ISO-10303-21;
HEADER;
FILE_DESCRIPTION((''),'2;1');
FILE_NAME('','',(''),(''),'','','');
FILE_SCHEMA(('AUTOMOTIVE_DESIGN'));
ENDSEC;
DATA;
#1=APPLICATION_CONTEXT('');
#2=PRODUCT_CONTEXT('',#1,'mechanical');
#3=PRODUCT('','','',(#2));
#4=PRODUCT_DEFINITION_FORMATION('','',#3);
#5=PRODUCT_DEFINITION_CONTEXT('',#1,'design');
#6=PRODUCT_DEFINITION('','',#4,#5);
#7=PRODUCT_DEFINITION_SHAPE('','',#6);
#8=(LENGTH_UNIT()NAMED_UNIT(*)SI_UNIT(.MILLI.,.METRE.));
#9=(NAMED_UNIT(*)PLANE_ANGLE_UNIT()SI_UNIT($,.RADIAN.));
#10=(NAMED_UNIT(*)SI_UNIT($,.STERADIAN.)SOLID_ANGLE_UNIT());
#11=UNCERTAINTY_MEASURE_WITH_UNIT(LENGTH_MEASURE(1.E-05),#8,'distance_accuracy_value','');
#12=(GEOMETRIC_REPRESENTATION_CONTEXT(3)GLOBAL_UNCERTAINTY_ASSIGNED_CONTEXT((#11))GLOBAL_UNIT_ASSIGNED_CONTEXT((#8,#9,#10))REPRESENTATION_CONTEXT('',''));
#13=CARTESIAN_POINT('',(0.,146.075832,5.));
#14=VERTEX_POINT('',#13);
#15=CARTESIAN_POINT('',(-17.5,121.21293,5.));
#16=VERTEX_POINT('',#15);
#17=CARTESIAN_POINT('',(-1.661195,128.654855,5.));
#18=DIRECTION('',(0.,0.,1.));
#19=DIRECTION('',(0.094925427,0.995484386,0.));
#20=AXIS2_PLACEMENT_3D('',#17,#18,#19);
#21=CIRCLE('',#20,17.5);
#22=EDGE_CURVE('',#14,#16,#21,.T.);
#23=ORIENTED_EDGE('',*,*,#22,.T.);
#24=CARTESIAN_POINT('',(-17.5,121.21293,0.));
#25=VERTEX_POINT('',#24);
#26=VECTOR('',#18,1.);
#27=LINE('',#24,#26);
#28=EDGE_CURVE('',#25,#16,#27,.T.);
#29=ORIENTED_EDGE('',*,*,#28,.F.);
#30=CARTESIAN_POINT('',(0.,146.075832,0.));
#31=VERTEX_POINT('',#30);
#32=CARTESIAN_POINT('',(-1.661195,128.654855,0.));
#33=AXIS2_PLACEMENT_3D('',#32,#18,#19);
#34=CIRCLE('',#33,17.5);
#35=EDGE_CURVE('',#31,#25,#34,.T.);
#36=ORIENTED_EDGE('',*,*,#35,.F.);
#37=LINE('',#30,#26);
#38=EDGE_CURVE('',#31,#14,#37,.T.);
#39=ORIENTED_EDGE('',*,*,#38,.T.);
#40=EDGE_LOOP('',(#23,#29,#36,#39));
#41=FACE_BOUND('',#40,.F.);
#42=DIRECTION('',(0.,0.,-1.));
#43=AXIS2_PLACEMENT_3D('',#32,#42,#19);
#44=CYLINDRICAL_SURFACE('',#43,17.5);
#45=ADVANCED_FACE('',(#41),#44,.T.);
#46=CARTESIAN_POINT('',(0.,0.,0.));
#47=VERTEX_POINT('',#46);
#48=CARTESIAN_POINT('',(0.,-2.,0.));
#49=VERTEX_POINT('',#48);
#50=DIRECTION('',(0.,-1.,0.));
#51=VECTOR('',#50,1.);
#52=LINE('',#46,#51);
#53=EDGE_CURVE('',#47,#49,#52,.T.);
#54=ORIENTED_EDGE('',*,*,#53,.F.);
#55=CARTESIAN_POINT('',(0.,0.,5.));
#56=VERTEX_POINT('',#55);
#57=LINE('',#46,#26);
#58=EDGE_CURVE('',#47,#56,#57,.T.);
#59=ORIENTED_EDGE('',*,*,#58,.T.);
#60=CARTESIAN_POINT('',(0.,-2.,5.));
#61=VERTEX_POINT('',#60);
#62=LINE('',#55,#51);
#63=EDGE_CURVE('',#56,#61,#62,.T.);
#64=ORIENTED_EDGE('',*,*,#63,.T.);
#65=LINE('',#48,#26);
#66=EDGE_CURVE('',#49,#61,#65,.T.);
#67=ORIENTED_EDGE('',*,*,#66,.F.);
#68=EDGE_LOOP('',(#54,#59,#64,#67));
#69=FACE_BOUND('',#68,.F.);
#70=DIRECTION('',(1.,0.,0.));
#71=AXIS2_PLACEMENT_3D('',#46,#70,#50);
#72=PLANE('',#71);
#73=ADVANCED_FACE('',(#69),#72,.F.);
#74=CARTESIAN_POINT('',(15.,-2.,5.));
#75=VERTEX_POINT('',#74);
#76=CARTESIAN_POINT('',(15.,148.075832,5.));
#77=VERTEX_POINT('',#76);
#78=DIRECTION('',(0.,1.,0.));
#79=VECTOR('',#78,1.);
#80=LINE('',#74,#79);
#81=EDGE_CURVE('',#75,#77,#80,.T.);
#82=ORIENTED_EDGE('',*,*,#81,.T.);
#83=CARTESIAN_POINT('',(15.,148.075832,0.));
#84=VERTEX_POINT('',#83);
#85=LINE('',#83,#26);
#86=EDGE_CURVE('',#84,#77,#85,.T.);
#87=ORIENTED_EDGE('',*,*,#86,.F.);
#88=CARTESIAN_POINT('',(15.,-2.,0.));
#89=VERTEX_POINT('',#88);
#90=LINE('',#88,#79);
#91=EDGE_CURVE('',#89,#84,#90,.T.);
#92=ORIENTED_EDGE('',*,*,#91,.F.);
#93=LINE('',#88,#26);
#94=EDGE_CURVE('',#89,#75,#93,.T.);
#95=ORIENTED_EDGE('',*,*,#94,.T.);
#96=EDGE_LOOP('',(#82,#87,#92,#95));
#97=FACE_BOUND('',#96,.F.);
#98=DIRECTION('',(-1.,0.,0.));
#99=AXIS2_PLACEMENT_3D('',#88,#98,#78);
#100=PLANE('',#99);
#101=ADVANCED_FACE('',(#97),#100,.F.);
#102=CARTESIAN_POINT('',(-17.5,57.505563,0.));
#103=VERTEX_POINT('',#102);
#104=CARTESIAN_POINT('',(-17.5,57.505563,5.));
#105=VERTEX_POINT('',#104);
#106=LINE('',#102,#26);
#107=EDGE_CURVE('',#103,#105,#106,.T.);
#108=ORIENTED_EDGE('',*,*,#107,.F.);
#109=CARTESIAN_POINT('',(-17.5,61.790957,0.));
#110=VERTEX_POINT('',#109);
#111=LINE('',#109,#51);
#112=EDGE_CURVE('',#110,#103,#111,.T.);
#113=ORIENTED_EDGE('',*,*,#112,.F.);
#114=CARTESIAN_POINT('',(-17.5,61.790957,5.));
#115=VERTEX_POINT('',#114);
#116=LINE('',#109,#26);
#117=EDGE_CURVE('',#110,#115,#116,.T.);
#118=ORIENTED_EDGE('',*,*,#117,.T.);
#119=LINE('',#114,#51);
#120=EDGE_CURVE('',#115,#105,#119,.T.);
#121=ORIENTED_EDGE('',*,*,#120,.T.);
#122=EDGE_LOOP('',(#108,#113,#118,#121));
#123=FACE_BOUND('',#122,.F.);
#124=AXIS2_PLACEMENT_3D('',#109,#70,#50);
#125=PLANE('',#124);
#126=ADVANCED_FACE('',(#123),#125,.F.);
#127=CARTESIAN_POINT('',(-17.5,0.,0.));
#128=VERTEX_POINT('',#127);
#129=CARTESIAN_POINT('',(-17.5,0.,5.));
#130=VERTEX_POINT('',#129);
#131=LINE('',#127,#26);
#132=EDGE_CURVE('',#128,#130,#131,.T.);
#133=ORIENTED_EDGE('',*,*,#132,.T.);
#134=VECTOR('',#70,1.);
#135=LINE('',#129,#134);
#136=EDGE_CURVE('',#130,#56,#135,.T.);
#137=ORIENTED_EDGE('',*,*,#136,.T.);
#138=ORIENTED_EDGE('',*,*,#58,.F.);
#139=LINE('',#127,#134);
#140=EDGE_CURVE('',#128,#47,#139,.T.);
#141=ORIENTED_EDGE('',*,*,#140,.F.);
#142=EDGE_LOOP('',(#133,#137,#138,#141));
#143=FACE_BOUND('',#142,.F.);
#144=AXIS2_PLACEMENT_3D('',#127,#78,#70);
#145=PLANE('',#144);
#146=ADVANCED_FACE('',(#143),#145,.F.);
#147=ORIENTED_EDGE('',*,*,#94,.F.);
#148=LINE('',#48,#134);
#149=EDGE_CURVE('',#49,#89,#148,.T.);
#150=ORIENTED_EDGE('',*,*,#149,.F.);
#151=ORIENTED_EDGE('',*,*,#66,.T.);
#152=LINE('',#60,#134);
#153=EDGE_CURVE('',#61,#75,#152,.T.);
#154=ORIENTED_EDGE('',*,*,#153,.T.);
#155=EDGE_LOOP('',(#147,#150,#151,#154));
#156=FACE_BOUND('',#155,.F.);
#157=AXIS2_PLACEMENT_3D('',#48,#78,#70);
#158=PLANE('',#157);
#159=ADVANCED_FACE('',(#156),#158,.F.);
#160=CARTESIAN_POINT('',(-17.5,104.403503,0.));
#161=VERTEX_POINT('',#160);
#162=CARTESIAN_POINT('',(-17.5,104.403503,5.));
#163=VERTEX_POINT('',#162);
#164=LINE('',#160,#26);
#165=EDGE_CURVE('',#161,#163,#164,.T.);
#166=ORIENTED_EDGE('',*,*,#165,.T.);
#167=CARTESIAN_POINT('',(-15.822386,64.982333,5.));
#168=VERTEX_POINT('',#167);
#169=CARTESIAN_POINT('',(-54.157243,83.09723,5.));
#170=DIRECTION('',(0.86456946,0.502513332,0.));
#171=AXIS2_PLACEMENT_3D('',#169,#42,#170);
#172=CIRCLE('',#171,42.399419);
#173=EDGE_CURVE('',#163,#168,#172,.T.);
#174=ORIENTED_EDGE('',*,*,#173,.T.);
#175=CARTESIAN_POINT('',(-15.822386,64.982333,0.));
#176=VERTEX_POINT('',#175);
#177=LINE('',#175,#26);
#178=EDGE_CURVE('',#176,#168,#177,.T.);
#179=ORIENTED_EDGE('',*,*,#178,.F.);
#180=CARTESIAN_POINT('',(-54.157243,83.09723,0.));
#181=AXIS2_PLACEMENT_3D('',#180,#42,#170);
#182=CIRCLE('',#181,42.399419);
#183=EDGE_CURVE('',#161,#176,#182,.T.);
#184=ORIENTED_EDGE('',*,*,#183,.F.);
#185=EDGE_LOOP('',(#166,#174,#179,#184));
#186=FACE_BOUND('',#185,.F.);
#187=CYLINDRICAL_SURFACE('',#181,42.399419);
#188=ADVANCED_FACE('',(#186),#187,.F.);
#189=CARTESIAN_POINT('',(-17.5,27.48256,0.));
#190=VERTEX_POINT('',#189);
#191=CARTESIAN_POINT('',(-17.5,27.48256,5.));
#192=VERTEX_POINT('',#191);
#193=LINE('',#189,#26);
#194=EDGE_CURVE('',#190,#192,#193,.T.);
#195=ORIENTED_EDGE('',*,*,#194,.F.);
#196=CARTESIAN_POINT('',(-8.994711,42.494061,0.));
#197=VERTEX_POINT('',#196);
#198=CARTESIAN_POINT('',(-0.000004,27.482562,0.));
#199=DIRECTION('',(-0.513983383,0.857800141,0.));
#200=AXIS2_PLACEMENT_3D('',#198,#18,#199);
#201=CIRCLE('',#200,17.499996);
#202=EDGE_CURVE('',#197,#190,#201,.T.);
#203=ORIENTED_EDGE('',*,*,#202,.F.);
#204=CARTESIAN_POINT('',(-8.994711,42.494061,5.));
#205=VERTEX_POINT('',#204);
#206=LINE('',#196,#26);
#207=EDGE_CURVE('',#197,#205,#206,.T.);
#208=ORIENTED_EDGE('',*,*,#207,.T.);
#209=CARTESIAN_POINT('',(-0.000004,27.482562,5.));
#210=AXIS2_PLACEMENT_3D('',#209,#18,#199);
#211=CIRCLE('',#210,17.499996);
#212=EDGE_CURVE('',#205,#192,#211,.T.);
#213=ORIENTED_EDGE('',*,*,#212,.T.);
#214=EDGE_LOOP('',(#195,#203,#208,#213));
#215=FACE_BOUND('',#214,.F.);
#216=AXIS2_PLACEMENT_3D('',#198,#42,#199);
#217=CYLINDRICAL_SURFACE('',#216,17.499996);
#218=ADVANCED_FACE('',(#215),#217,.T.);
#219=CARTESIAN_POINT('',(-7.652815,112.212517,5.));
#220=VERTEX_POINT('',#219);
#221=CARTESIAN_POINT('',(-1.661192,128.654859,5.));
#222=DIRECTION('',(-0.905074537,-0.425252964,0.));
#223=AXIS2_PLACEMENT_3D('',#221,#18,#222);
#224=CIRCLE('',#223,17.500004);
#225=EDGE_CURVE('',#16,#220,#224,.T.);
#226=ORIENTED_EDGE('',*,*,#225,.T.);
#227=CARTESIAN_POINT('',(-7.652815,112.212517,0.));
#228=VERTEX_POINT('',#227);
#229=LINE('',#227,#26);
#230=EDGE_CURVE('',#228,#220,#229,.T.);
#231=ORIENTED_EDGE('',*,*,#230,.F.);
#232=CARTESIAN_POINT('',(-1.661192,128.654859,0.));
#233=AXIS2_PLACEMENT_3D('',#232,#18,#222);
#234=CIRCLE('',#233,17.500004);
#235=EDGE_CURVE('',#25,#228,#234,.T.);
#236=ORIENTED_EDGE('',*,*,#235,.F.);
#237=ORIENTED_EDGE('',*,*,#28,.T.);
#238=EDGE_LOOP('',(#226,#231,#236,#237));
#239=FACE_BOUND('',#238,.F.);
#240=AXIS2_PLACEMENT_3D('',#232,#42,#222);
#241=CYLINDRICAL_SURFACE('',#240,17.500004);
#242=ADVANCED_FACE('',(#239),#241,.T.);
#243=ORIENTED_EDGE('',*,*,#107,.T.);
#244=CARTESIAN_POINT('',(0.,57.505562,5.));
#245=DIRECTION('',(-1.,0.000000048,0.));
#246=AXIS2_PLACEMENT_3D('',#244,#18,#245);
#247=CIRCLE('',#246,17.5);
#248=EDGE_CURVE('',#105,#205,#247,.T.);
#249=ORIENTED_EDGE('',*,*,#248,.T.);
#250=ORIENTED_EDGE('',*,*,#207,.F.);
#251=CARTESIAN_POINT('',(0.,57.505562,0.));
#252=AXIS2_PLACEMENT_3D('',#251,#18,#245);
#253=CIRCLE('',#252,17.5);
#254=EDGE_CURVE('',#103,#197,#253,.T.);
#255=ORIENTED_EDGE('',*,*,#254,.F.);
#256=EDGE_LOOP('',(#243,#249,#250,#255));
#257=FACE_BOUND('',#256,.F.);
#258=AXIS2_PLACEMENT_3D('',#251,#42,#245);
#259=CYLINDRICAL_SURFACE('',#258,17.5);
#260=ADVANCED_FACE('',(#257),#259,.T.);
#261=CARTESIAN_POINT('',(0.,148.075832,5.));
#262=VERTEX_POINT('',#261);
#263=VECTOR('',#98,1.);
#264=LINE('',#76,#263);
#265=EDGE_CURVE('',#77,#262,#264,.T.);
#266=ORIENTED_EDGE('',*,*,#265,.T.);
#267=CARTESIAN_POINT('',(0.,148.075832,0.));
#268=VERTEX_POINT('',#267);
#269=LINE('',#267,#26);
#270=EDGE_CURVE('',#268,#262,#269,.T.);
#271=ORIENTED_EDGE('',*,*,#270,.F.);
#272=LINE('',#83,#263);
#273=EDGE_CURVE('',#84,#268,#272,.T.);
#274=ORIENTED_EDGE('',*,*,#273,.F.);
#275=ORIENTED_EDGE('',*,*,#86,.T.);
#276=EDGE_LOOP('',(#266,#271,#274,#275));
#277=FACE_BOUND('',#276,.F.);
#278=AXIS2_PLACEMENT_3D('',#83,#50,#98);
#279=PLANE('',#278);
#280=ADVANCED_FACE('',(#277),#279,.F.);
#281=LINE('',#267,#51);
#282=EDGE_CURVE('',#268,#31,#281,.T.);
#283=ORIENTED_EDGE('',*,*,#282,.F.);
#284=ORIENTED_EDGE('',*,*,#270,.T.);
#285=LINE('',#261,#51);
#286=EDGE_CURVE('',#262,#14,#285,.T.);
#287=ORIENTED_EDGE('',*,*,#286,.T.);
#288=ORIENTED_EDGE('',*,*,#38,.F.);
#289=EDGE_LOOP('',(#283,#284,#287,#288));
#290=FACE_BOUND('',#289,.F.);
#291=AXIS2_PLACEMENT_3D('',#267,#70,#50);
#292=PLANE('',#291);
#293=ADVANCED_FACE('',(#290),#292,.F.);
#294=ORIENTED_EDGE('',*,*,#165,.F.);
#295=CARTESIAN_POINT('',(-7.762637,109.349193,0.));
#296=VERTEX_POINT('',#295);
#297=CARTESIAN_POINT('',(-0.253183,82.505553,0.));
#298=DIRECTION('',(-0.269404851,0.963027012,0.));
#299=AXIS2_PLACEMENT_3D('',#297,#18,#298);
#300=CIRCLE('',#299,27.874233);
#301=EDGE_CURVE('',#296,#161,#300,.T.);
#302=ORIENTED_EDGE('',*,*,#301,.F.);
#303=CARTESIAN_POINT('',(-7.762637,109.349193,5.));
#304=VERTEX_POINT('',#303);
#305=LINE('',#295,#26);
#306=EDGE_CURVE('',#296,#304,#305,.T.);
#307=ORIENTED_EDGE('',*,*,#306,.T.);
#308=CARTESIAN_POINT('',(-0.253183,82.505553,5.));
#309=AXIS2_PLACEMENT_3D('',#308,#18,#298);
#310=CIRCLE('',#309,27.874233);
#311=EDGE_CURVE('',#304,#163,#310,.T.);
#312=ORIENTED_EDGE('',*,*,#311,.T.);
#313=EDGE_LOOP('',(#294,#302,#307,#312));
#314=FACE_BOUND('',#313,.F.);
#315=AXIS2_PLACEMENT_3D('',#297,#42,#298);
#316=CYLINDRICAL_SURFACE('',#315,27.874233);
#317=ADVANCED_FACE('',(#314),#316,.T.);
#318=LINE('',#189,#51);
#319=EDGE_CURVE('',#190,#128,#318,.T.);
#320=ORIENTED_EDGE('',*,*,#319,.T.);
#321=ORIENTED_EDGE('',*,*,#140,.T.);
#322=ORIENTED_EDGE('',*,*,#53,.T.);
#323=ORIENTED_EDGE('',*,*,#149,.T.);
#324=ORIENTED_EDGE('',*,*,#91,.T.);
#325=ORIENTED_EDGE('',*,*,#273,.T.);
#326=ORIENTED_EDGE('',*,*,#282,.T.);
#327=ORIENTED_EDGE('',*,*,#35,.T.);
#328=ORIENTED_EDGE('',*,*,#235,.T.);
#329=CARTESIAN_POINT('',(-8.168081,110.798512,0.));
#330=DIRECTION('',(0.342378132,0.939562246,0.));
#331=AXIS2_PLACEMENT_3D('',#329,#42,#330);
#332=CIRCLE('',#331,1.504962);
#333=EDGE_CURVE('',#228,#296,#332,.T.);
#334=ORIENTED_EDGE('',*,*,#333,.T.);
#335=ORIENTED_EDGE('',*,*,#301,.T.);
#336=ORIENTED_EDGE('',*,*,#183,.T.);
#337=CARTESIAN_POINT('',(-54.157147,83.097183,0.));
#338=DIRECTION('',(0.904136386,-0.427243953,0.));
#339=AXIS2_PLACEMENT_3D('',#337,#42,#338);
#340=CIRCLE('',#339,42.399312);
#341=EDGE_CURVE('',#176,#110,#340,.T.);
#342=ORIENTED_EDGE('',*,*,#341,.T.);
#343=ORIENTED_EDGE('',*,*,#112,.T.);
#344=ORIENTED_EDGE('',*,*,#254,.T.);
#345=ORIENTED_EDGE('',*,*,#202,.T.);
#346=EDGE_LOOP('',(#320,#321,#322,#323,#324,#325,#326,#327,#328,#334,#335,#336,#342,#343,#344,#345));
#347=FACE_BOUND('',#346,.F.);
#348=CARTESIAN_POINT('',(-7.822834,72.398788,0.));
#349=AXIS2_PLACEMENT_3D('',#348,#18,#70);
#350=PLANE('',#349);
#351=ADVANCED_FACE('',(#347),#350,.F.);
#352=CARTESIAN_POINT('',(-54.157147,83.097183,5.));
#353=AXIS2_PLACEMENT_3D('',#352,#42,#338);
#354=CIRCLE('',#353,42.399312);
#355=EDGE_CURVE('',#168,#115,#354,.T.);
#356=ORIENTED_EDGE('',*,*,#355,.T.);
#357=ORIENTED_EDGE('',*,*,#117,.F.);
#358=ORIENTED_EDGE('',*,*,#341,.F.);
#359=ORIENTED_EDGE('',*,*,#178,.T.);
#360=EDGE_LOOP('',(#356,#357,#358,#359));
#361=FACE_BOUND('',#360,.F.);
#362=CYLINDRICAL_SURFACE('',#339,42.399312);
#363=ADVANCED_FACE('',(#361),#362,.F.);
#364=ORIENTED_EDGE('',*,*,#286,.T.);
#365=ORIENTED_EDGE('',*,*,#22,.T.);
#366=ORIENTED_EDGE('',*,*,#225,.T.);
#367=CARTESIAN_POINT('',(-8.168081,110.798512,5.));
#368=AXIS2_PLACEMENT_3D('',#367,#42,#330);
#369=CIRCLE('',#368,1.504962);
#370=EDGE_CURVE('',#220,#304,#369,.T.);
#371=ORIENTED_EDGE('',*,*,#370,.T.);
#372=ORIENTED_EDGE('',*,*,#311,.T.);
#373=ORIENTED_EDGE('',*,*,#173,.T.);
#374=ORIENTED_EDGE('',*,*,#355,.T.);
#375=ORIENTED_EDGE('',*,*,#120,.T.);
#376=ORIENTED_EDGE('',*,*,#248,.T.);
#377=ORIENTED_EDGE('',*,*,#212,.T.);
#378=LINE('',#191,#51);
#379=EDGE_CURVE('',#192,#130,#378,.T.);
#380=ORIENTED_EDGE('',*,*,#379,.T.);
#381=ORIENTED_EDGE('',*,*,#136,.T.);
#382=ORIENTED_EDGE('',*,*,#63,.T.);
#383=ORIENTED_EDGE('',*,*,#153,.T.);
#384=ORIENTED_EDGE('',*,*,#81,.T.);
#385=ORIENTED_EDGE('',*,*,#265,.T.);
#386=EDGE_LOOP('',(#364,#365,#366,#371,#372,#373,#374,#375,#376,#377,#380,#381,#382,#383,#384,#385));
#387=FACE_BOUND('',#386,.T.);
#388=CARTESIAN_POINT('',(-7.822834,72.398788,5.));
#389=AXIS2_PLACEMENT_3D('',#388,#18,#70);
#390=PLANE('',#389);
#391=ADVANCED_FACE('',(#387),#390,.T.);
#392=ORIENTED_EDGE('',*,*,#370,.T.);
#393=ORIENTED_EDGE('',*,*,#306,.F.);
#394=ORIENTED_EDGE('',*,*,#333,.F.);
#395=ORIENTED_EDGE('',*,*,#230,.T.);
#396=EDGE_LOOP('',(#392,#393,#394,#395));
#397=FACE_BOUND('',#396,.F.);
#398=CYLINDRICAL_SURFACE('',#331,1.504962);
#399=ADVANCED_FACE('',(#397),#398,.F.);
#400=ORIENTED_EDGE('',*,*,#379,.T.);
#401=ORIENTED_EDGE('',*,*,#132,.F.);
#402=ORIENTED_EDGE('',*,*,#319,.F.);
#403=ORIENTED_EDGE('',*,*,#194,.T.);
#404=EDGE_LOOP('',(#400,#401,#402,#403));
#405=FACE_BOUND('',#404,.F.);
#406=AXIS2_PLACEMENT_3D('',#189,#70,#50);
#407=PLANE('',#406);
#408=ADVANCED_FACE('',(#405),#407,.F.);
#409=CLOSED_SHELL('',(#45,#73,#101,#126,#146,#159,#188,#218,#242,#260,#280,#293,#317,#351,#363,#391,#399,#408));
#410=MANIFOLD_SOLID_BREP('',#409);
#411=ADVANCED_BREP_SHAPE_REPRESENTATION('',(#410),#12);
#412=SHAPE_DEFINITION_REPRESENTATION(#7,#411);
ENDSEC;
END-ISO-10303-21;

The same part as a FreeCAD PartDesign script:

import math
import FreeCAD as App
import Part
import Sketcher
Q = App.Units.Quantity

doc = App.newDocument("Part")
body = doc.addObject("PartDesign::Body", "Body")

sketch1 = body.newObject("Sketcher::SketchObject", "Sketch")
sketch1.AttachmentSupport = (doc.getObject("XY_Plane"), [""])
sketch1.MapMode = "FlatFace"
sketch1.addGeometry([
    Part.LineSegment(App.Vector(-17.5, 0, 0), App.Vector(0, 0, 0)),
    Part.LineSegment(App.Vector(0, 0, 0), App.Vector(0, -2, 0)),
    Part.LineSegment(App.Vector(0, -2, 0), App.Vector(15, -2, 0)),
    Part.LineSegment(App.Vector(15, -2, 0), App.Vector(15, 148.1, 0)),
    Part.LineSegment(App.Vector(15, 148.1, 0), App.Vector(0, 148.1, 0)),
    Part.LineSegment(App.Vector(0, 148.1, 0), App.Vector(0, 146.1, 0)),
    Part.ArcOfCircle(Part.Circle(App.Vector(-1.7, 128.7, 0), App.Vector(0, 0, 1), 17.5), math.radians(85), math.radians(205)),
    Part.ArcOfCircle(Part.Circle(App.Vector(-1.7, 128.7, 0), App.Vector(0, 0, 1), 17.5), math.radians(-155), math.radians(-110)),
    Part.ArcOfCircle(Part.Circle(App.Vector(-8.2, 110.8, 0), App.Vector(0, 0, 1), 1.5), math.radians(-74), math.radians(70)),
    Part.ArcOfCircle(Part.Circle(App.Vector(-0.3, 82.5, 0), App.Vector(0, 0, 1), 27.9), math.radians(106), math.radians(128)),
    Part.ArcOfCircle(Part.Circle(App.Vector(-54.2, 83.1, 0), App.Vector(0, 0, 1), 42.4), math.radians(-25), math.radians(30)),
    Part.ArcOfCircle(Part.Circle(App.Vector(-54.2, 83.1, 0), App.Vector(0, 0, 1), 42.4), math.radians(-30.17), math.radians(-25.29)),
    Part.LineSegment(App.Vector(-17.5, 61.8, 0), App.Vector(-17.5, 57.5, 0)),
    Part.ArcOfCircle(Part.Circle(App.Vector(0, 57.5, 0), App.Vector(0, 0, 1), 17.5), math.radians(180), math.radians(239)),
    Part.ArcOfCircle(Part.Circle(App.Vector(0, 27.5, 0), App.Vector(0, 0, 1), 17.5), math.radians(121), math.radians(180)),
    Part.LineSegment(App.Vector(-17.5, 27.5, 0), App.Vector(-17.5, 0, 0)),
], False)
sketch1.addConstraint([
    Sketcher.Constraint("Coincident", 0, 2, 1, 1),
    Sketcher.Constraint("Coincident", 1, 2, 2, 1),
    Sketcher.Constraint("Coincident", 2, 2, 3, 1),
    Sketcher.Constraint("Coincident", 3, 2, 4, 1),
    Sketcher.Constraint("Coincident", 4, 2, 5, 1),
    Sketcher.Constraint("Coincident", 5, 2, 6, 1),
    Sketcher.Constraint("Tangent", 6, 2, 7, 1),
    Sketcher.Constraint("Tangent", 7, 2, 8, 2),
    Sketcher.Constraint("Tangent", 8, 1, 9, 1),
    Sketcher.Constraint("Coincident", 9, 2, 10, 2),
    Sketcher.Constraint("Tangent", 10, 1, 11, 2),
    Sketcher.Constraint("Coincident", 11, 1, 12, 1),
    Sketcher.Constraint("Tangent", 12, 2, 13, 1),
    Sketcher.Constraint("Coincident", 13, 2, 14, 1),
    Sketcher.Constraint("Tangent", 14, 2, 15, 1),
    Sketcher.Constraint("Coincident", 15, 2, 0, 1),
    Sketcher.Constraint("Horizontal", 0),
    Sketcher.Constraint("Vertical", 1),
    Sketcher.Constraint("Horizontal", 2),
    Sketcher.Constraint("Vertical", 3),
    Sketcher.Constraint("Horizontal", 4),
    Sketcher.Constraint("Vertical", 5),
    Sketcher.Constraint("Vertical", 12),
    Sketcher.Constraint("Vertical", 15),
    Sketcher.Constraint("Coincident", 0, 2, -1, 1),
    Sketcher.Constraint("Equal", 6, 13),
    Sketcher.Constraint("PointOnObject", 13, 3, -2),
    Sketcher.Constraint("PointOnObject", 4, 2, -2),
    Sketcher.Constraint("Vertical", 6, 2, 9, 2),
    Sketcher.Constraint("Vertical", 9, 2, 11, 1),
    Sketcher.Constraint("Vertical", 12, 2, 14, 2),
    Sketcher.Constraint("Equal", 1, 5),
    Sketcher.Constraint("Radius", 6, Q("17.5 mm")),
    Sketcher.Constraint("DistanceX", 2, 1, 2, 2, Q("15 mm")),
    Sketcher.Constraint("DistanceY", 1, 2, 1, 1, Q("2 mm")),
    Sketcher.Constraint("Radius", 8, Q("1.504962 mm")),
    Sketcher.Constraint("Radius", 10, Q("42.399419 mm")),
    Sketcher.Constraint("Radius", 11, Q("42.399312 mm")),
    Sketcher.Constraint("Radius", 7, Q("17.500004 mm")),
    Sketcher.Constraint("Radius", 9, Q("27.874233 mm")),
    Sketcher.Constraint("Radius", 14, Q("17.499996 mm")),
    Sketcher.Constraint("DistanceY", 14, 3, 13, 3, Q("30.023 mm")),
    Sketcher.Constraint("DistanceY", 3, 1, 3, 2, Q("150.075832 mm")),
    Sketcher.Constraint("DistanceY", 15, 2, 15, 1, Q("27.48256 mm")),
    Sketcher.Constraint("DistanceY", 9, 3, 6, 3, Q("46.149302 mm")),
    Sketcher.Constraint("DistanceY", 12, 2, 12, 1, Q("4.285394 mm")),
    Sketcher.Constraint("DistanceX", 7, 3, -1, 1, Q("1.661192 mm")),
    Sketcher.Constraint("DistanceX", 8, 3, -1, 1, Q("8.168081 mm")),
    Sketcher.Constraint("DistanceY", 13, 3, 10, 1, Q("7.476771 mm")),
])
pad1 = body.newObject("PartDesign::Pad", "Pad")
pad1.Profile = sketch1
pad1.Length = 5

doc.recompute()
